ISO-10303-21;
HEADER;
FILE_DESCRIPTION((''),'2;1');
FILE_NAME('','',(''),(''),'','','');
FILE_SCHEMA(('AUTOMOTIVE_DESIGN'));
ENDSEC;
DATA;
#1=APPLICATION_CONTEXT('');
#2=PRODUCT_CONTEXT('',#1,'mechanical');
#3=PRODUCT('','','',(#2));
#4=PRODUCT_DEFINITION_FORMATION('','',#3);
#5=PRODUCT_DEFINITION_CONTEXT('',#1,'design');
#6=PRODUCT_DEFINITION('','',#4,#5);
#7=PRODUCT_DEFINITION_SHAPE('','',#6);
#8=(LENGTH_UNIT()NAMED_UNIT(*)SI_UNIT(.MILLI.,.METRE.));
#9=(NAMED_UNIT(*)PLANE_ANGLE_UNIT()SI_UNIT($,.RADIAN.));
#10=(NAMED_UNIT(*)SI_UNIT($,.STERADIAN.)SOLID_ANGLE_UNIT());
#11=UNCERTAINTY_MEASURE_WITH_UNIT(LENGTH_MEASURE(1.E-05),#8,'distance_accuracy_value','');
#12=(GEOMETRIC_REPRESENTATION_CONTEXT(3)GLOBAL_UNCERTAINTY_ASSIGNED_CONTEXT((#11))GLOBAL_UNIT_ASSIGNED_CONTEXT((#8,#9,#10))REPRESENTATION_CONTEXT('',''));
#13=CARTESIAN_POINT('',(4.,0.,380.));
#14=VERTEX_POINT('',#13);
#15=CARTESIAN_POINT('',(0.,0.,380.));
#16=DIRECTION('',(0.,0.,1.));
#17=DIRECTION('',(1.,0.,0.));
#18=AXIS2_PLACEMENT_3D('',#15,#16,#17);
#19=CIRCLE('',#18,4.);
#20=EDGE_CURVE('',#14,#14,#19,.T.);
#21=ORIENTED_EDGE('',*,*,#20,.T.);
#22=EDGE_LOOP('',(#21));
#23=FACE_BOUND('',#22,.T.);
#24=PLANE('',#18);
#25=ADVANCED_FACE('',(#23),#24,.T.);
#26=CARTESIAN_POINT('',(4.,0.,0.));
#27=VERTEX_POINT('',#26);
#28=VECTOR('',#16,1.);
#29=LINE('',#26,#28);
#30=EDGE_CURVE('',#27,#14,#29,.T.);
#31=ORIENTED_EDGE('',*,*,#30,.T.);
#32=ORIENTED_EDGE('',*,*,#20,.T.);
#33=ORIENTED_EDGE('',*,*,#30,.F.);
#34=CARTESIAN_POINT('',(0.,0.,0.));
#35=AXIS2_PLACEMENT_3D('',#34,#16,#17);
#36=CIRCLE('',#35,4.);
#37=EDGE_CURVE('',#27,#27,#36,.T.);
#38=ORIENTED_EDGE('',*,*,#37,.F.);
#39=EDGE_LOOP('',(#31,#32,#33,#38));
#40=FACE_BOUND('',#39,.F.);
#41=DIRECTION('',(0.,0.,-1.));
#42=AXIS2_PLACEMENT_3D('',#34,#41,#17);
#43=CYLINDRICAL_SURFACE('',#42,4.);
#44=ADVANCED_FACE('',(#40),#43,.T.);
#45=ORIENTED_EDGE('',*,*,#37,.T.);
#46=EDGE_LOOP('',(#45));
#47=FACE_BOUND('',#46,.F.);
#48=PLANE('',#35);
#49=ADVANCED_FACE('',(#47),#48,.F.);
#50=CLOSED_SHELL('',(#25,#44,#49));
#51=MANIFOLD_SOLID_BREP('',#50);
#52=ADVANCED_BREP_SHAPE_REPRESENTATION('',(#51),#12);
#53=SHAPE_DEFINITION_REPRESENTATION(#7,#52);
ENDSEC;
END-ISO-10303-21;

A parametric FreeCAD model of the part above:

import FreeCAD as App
import Part
import Sketcher

V = App.Vector

doc = App.newDocument("Part")
body = doc.addObject("PartDesign::Body", "Body")

# Sketch on XY plane
sketch1 = body.newObject("Sketcher::SketchObject", "Sketch")
sketch1.AttachmentSupport = (doc.getObject("XY_Plane"), [""])
sketch1.MapMode = "FlatFace"
sketch1.addGeometry(Part.Circle(V(0, 0, 0), V(0, 0, 1), 4), False)
sketch1.addConstraint([
    Sketcher.Constraint("Coincident", 0, 3, -1, 1),
    Sketcher.Constraint("Diameter", 0, 8.0),
])
pad1 = body.newObject("PartDesign::Pad", "Pad")
pad1.Profile = sketch1
pad1.Length = 380

doc.recompute()
